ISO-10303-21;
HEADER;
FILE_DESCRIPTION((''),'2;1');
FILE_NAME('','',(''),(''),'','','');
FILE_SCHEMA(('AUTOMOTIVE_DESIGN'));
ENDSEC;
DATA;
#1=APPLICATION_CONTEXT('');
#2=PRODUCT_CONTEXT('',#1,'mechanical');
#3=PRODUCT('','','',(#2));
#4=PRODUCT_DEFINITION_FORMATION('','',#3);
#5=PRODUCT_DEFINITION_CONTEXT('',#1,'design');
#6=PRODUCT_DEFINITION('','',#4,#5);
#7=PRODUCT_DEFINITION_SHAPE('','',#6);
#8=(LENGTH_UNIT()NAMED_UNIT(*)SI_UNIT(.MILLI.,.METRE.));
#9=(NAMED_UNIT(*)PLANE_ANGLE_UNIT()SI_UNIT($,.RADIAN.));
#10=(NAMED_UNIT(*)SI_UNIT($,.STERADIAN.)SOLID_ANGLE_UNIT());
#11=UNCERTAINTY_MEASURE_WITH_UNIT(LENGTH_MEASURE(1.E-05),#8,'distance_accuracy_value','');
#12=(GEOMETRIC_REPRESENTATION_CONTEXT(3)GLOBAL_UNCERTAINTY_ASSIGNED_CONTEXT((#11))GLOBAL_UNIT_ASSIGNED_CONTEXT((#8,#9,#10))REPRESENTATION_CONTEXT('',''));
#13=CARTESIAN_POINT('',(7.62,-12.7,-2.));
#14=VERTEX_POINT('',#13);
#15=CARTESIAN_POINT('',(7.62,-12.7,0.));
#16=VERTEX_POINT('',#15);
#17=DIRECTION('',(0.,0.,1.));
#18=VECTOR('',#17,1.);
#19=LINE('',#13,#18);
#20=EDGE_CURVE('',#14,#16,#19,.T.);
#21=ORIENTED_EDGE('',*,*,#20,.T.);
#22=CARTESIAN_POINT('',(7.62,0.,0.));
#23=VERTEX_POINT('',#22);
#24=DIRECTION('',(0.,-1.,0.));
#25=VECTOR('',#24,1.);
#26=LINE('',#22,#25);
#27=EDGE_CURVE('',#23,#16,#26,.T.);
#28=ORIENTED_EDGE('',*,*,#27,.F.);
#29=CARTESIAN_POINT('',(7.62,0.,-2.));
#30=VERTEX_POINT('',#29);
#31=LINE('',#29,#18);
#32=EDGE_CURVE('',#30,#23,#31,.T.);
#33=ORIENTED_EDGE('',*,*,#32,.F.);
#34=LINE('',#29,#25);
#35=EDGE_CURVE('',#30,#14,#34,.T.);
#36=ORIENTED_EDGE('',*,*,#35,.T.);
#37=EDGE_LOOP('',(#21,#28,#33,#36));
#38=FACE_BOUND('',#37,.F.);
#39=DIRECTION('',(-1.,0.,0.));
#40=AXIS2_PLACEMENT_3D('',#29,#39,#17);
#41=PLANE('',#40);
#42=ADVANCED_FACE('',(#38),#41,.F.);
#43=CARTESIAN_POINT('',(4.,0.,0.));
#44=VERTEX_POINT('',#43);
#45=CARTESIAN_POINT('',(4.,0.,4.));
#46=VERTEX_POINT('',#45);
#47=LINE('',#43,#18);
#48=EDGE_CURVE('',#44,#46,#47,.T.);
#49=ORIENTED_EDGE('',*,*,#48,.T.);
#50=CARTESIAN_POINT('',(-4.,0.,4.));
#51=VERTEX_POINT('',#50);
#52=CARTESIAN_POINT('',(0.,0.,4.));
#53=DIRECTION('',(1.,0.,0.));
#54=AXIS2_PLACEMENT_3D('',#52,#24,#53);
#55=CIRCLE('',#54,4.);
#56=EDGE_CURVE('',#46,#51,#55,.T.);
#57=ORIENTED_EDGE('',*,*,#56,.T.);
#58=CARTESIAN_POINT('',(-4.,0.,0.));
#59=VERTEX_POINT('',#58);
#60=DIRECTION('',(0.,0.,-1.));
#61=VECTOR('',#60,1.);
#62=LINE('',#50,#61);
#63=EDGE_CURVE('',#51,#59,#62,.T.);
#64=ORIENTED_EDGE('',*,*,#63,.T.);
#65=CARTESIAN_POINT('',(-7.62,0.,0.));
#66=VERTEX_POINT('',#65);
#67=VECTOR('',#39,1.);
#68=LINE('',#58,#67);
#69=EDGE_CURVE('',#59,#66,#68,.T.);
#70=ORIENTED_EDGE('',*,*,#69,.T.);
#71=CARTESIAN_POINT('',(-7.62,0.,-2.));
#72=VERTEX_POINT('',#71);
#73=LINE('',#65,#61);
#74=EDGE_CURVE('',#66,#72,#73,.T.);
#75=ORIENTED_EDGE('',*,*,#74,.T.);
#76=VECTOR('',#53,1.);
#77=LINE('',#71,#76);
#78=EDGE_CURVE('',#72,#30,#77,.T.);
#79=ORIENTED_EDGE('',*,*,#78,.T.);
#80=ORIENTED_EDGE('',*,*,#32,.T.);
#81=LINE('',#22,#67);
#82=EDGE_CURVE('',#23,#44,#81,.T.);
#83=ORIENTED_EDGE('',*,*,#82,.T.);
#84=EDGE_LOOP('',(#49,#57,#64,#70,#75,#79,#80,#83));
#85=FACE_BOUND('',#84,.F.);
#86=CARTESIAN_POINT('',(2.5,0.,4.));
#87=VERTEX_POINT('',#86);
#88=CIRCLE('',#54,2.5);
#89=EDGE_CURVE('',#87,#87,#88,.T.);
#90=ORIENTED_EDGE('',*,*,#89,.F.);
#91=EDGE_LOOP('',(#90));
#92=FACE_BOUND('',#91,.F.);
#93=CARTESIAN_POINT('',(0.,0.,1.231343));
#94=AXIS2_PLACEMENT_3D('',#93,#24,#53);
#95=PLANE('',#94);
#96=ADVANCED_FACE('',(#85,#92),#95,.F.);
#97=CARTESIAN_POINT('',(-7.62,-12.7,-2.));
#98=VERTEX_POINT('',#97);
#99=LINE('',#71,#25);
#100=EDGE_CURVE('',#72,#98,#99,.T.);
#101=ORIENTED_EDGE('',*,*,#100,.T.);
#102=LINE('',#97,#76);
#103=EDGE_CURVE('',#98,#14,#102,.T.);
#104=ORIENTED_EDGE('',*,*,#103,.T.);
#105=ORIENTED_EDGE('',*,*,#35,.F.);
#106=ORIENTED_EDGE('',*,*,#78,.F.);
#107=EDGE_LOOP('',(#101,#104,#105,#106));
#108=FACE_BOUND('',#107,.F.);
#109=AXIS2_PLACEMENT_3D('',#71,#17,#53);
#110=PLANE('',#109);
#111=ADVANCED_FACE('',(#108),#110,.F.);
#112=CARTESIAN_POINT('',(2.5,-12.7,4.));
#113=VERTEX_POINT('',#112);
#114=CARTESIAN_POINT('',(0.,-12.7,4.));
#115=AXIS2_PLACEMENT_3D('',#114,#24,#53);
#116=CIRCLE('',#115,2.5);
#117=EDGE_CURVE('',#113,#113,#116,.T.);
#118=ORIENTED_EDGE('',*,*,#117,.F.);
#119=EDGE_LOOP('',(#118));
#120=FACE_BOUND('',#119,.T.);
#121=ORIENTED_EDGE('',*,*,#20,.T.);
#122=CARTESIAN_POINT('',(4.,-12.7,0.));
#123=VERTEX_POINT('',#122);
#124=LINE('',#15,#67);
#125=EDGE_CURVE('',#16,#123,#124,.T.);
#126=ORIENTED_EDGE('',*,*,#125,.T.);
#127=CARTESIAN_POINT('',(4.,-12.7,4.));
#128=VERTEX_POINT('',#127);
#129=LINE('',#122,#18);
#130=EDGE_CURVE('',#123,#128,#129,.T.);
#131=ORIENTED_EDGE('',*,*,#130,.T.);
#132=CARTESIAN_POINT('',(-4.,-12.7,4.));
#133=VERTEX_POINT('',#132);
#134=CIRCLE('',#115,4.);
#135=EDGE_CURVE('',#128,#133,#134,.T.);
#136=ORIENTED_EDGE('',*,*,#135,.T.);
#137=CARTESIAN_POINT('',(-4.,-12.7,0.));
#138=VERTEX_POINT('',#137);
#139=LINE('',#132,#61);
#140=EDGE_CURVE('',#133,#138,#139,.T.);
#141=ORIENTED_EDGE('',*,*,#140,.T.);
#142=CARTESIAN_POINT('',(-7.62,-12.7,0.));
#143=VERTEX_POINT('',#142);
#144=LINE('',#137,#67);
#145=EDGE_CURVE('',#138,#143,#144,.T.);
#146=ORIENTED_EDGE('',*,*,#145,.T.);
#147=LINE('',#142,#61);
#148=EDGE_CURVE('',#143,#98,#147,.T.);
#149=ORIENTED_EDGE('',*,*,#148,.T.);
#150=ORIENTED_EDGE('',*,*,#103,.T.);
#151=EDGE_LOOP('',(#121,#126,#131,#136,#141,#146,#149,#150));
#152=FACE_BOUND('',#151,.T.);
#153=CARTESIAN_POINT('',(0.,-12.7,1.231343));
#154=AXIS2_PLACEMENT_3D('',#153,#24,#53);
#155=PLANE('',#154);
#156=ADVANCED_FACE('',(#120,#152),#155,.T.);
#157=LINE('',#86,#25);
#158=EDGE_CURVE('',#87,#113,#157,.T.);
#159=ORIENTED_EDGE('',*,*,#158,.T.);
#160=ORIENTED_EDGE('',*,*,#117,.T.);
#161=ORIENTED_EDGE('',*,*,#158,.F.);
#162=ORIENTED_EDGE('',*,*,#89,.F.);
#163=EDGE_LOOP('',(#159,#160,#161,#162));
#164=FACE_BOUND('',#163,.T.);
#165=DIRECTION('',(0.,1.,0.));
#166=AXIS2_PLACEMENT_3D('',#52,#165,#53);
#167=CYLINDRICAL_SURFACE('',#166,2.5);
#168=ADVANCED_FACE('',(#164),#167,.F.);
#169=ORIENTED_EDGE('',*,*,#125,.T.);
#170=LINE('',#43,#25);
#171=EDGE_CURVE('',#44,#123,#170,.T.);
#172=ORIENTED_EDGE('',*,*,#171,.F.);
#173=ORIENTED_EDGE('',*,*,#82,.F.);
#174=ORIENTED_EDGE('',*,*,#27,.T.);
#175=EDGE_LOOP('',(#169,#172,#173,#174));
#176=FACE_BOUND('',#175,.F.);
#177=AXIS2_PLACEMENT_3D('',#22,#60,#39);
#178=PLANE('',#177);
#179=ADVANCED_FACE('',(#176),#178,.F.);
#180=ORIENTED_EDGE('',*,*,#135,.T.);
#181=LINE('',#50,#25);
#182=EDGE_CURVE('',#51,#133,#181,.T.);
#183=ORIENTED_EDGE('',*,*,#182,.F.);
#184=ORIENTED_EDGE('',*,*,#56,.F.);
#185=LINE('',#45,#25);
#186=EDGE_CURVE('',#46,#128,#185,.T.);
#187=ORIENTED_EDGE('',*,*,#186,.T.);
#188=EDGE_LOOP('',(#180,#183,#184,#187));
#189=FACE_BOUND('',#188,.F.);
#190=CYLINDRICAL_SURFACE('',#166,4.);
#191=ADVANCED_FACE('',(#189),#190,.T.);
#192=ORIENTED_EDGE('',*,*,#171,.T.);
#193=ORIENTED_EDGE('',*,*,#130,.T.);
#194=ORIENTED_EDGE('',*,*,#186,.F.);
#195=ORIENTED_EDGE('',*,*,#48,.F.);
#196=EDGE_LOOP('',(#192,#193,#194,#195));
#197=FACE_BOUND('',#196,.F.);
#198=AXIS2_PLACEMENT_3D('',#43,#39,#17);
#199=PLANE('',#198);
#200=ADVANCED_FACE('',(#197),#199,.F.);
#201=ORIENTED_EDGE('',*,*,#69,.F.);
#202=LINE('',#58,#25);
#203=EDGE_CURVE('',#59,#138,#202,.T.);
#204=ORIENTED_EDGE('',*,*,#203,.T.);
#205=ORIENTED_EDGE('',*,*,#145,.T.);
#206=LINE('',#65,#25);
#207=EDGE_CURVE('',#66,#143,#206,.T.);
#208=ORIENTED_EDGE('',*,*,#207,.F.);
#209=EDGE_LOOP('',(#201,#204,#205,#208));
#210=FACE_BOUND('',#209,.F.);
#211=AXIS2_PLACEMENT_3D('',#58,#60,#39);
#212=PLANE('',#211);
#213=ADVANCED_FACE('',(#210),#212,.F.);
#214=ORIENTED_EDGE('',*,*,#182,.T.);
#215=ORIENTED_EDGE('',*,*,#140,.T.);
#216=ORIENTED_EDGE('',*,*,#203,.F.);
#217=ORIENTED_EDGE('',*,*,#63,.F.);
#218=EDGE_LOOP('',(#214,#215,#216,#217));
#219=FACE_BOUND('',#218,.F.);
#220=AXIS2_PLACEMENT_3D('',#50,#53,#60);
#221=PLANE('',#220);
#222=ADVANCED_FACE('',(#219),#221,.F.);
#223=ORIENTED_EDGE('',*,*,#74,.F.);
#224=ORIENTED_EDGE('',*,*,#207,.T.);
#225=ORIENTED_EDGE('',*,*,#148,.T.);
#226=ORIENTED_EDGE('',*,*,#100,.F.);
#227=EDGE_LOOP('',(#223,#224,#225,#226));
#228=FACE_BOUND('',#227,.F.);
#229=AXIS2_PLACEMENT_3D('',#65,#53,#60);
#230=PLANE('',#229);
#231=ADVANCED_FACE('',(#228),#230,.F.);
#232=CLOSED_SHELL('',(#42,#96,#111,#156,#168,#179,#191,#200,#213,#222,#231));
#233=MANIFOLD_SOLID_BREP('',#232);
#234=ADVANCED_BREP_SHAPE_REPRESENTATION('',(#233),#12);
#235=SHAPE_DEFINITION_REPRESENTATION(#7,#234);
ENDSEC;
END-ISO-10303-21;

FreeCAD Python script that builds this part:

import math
import FreeCAD as App
import Part
import Sketcher
from FreeCAD import Vector

doc = App.newDocument("Part")
body = doc.addObject("PartDesign::Body", "Body")

sketch1 = body.newObject("Sketcher::SketchObject", "Sketch")
sketch1.AttachmentSupport = (doc.getObject("XZ_Plane"), [""])
sketch1.MapMode = "FlatFace"
sketch1.addGeometry([
    Part.LineSegment(Vector(-4, 0, 0), Vector(-7.6, 0, 0)),
    Part.LineSegment(Vector(-7.6, 0, 0), Vector(-7.6, -2, 0)),
    Part.LineSegment(Vector(-7.6, -2, 0), Vector(7.6, -2, 0)),
    Part.LineSegment(Vector(7.6, -2, 0), Vector(7.6, 0, 0)),
    Part.LineSegment(Vector(7.6, 0, 0), Vector(4, 0, 0)),
    Part.LineSegment(Vector(4, 0, 0), Vector(4, 4, 0)),
    Part.ArcOfCircle(Part.Circle(Vector(0, 4, 0), Vector(0, 0, 1), 4), math.radians(0), math.radians(180)),
    Part.LineSegment(Vector(-4, 4, 0), Vector(-4, 0, 0)),
    Part.Circle(Vector(0, 4, 0), Vector(0, 0, 1), 2.5),
], False)
sketch1.addConstraint([
    Sketcher.Constraint("Coincident", 0, 2, 1, 1),
    Sketcher.Constraint("Coincident", 1, 2, 2, 1),
    Sketcher.Constraint("Coincident", 2, 2, 3, 1),
    Sketcher.Constraint("Coincident", 3, 2, 4, 1),
    Sketcher.Constraint("Coincident", 4, 2, 5, 1),
    Sketcher.Constraint("Tangent", 5, 2, 6, 1),
    Sketcher.Constraint("Tangent", 6, 2, 7, 1),
    Sketcher.Constraint("Coincident", 7, 2, 0, 1),
    Sketcher.Constraint("Horizontal", 0),
    Sketcher.Constraint("Vertical", 1),
    Sketcher.Constraint("Horizontal", 2),
    Sketcher.Constraint("Vertical", 3),
    Sketcher.Constraint("Horizontal", 4),
    Sketcher.Constraint("Vertical", 5),
    Sketcher.Constraint("Vertical", 7),
    Sketcher.Constraint("Coincident", 8, 3, 6, 3),
    Sketcher.Constraint("Symmetric", 0, 2, 3, 2, -1, 1),
    Sketcher.Constraint("Symmetric", 4, 2, 7, 2, -2),
    Sketcher.Constraint("Diameter", 8, 5.0),
    Sketcher.Constraint("Radius", 6, 4.0),
    Sketcher.Constraint("DistanceY", 1, 2, 1, 1, 2.0),
    Sketcher.Constraint("DistanceY", 5, 1, 5, 2, 4.0),
    Sketcher.Constraint("DistanceX", 0, 2, 0, 1, 3.62),
])
pad1 = body.newObject("PartDesign::Pad", "Pad")
pad1.Profile = sketch1
pad1.Length = 12.7

doc.recompute()
